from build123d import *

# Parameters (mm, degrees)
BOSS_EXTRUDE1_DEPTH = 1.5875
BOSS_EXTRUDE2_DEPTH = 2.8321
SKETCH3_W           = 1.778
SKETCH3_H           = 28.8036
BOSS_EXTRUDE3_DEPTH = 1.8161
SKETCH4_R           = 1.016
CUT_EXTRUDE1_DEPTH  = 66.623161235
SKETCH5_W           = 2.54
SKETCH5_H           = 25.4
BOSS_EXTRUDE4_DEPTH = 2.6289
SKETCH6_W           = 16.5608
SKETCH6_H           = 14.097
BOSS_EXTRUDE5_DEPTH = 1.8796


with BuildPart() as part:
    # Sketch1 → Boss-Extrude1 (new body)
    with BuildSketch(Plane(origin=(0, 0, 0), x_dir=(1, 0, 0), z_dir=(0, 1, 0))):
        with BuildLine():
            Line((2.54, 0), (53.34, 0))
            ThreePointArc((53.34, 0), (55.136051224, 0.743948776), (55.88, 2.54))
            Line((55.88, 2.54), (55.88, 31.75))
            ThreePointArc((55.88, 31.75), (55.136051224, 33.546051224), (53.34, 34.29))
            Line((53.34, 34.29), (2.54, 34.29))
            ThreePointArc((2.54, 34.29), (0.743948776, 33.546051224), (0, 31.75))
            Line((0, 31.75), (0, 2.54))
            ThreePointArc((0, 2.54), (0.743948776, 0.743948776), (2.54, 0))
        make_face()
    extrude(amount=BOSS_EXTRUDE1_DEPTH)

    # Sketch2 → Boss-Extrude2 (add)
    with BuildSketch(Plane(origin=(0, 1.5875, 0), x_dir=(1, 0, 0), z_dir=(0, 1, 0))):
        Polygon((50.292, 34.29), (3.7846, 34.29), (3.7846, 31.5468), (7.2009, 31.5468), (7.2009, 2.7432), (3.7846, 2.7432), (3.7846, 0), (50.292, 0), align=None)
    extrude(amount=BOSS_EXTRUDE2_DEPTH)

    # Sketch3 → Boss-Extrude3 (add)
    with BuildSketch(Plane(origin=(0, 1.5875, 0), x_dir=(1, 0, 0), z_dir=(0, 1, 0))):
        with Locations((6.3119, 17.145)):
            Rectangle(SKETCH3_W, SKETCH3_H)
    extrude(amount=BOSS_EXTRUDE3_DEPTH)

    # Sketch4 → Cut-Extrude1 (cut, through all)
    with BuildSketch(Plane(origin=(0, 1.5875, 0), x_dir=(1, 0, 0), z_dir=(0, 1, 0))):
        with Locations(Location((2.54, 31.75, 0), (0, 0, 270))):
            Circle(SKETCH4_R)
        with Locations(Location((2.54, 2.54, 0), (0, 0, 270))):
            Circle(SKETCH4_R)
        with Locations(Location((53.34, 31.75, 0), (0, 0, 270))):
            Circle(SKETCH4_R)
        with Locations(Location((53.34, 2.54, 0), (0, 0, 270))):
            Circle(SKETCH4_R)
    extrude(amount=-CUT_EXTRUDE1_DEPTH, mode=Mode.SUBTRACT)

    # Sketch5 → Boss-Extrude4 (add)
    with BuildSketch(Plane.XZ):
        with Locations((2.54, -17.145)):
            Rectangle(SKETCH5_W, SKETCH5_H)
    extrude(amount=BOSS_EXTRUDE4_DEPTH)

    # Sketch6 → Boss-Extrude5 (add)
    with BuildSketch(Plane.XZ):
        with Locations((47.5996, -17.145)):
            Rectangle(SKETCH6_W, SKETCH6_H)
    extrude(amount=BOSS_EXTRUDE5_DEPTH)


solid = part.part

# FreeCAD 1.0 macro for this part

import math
import FreeCAD as App
import Part
import Sketcher

V = App.Vector
Q = App.Units.Quantity


def add_polygon(sketch, points):
    """Adds a closed chain of lines whose ends are joined by coincident constraints."""
    first, n = sketch.GeometryCount, len(points)
    for a, b in zip(points, points[1:] + points[:1]):
        sketch.addGeometry(Part.LineSegment(App.Vector(*a, 0), App.Vector(*b, 0)), False)
    for i in range(n):
        sketch.addConstraint(Sketcher.Constraint("Coincident", first + i, 2, first + (i + 1) % n, 1))

doc = App.newDocument("Part")
body = doc.addObject("PartDesign::Body", "Body")

sketch1 = body.newObject("Sketcher::SketchObject", "Sketch")
sketch1.AttachmentSupport = (doc.getObject("XZ_Plane"), [""])
sketch1.MapMode = "FlatFace"
sketch1.addGeometry(Part.LineSegment(V(2.5, 0, 0), V(53.3, 0, 0)), False)
sketch1.addGeometry(Part.ArcOfCircle(Part.Circle(V(53.3, -2.5, 0), V(0, 0, 1), 2.5), math.radians(0), math.radians(90)), False)
sketch1.addGeometry(Part.LineSegment(V(55.9, -2.5, 0), V(55.9, -31.8, 0)), False)
sketch1.addGeometry(Part.ArcOfCircle(Part.Circle(V(53.3, -31.7, 0), V(0, 0, 1), 2.5), math.radians(-90), math.radians(0)), False)
sketch1.addGeometry(Part.LineSegment(V(53.3, -34.3, 0), V(2.5, -34.3, 0)), False)
sketch1.addGeometry(Part.ArcOfCircle(Part.Circle(V(2.5, -31.7, 0), V(0, 0, 1), 2.5), math.radians(-180), math.radians(-90)), False)
sketch1.addGeometry(Part.LineSegment(V(0, -31.8, 0), V(0, -2.5, 0)), False)
sketch1.addGeometry(Part.ArcOfCircle(Part.Circle(V(2.5, -2.5, 0), V(0, 0, 1), 2.5), math.radians(90), math.radians(180)), False)
sketch1.addConstraint(Sketcher.Constraint("Tangent", 0, 2, 1, 2))
sketch1.addConstraint(Sketcher.Constraint("Tangent", 1, 1, 2, 1))
sketch1.addConstraint(Sketcher.Constraint("Tangent", 2, 2, 3, 2))
sketch1.addConstraint(Sketcher.Constraint("Tangent", 3, 1, 4, 1))
sketch1.addConstraint(Sketcher.Constraint("Tangent", 4, 2, 5, 2))
sketch1.addConstraint(Sketcher.Constraint("Tangent", 5, 1, 6, 1))
sketch1.addConstraint(Sketcher.Constraint("Tangent", 6, 2, 7, 2))
sketch1.addConstraint(Sketcher.Constraint("Tangent", 7, 1, 0, 1))
sketch1.addConstraint(Sketcher.Constraint("Horizontal", 0))
sketch1.addConstraint(Sketcher.Constraint("Vertical", 2))
sketch1.addConstraint(Sketcher.Constraint("Horizontal", 4))
sketch1.addConstraint(Sketcher.Constraint("Vertical", 6))
sketch1.addConstraint(Sketcher.Constraint("Equal", 1, 3))
sketch1.addConstraint(Sketcher.Constraint("Equal", 3, 5))
sketch1.addConstraint(Sketcher.Constraint("Equal", 5, 7))
sketch1.addConstraint(Sketcher.Constraint("PointOnObject", 0, 2, -1))
sketch1.addConstraint(Sketcher.Constraint("PointOnObject", 5, 1, -2))
sketch1.addConstraint(Sketcher.Constraint("Radius", 1, Q("0.1 in")))
sketch1.addConstraint(Sketcher.Constraint("DistanceX", 0, 1, 0, 2, Q("2 in")))
sketch1.addConstraint(Sketcher.Constraint("DistanceY", 2, 2, 2, 1, Q("1.15 in")))
pad1 = body.newObject("PartDesign::Pad", "Pad")
pad1.Profile = sketch1
pad1.Length = Q("0.0625 in")
pad1.Reversed = True

sketch2 = body.newObject("Sketcher::SketchObject", "Sketch001")
sketch2.AttachmentSupport = (doc.getObject("XZ_Plane"), [""])
sketch2.MapMode = "FlatFace"
sketch2.AttachmentOffset = App.Placement(V(0, 0, -0.0625 * 25.4), App.Rotation())
add_polygon(sketch2, [(50.3, -34.3), (3.8, -34.3), (3.8, -31.5), (7.2, -31.5), (7.2, -2.7), (3.8, -2.7), (3.8, 0), (50.3, 0)])
sketch2.addConstraint(Sketcher.Constraint("Horizontal", 0))
sketch2.addConstraint(Sketcher.Constraint("Vertical", 1))
sketch2.addConstraint(Sketcher.Constraint("Horizontal", 2))
sketch2.addConstraint(Sketcher.Constraint("Vertical", 3))
sketch2.addConstraint(Sketcher.Constraint("Horizontal", 4))
sketch2.addConstraint(Sketcher.Constraint("Vertical", 5))
sketch2.addConstraint(Sketcher.Constraint("Horizontal", 6))
sketch2.addConstraint(Sketcher.Constraint("Vertical", 7))
sketch2.addConstraint(Sketcher.Constraint("PointOnObject", 5, 2, -1))
sketch2.addConstraint(Sketcher.Constraint("Vertical", 1, 2, 4, 2))
sketch2.addConstraint(Sketcher.Constraint("Equal", 1, 5))
sketch2.addConstraint(Sketcher.Constraint("DistanceY", 7, 2, 7, 1, Q("1.35 in")))
sketch2.addConstraint(Sketcher.Constraint("DistanceX", 0, 2, 0, 1, Q("1.831 in")))
sketch2.addConstraint(Sketcher.Constraint("DistanceY", 1, 1, 1, 2, Q("0.108 in")))
sketch2.addConstraint(Sketcher.Constraint("DistanceX", -1, 1, 6, 2, Q("1.98 in")))
sketch2.addConstraint(Sketcher.Constraint("DistanceX", 2, 1, 2, 2, Q("0.1345 in")))
pad2 = body.newObject("PartDesign::Pad", "Pad001")
pad2.Profile = sketch2
pad2.Length = Q("0.1115 in")
pad2.Reversed = True

sketch3 = body.newObject("Sketcher::SketchObject", "Sketch002")
sketch3.AttachmentSupport = (doc.getObject("XZ_Plane"), [""])
sketch3.MapMode = "FlatFace"
sketch3.AttachmentOffset = App.Placement(V(0, 0, -0.0625 * 25.4), App.Rotation())
add_polygon(sketch3, [(5.4, -31.5), (5.4, -2.7), (7.2, -2.7), (7.2, -31.5)])
sketch3.addConstraint(Sketcher.Constraint("Vertical", 0))
sketch3.addConstraint(Sketcher.Constraint("Horizontal", 1))
sketch3.addConstraint(Sketcher.Constraint("Vertical", 2))
sketch3.addConstraint(Sketcher.Constraint("Horizontal", 3))
sketch3.addConstraint(Sketcher.Constraint("DistanceX", 1, 1, 1, 2, Q("0.07 in")))
sketch3.addConstraint(Sketcher.Constraint("DistanceY", 0, 1, 0, 2, Q("1.134 in")))
sketch3.addConstraint(Sketcher.Constraint("DistanceY", 0, 2, -1, 1, Q("0.108 in")))
sketch3.addConstraint(Sketcher.Constraint("DistanceX", -1, 1, 0, 2, Q("0.2135 in")))
pad3 = body.newObject("PartDesign::Pad", "Pad002")
pad3.Profile = sketch3
pad3.Length = Q("0.0715 in")
pad3.Reversed = True

sketch4 = body.newObject("Sketcher::SketchObject", "Sketch003")
sketch4.AttachmentSupport = (doc.getObject("XZ_Plane"), [""])
sketch4.MapMode = "FlatFace"
sketch4.AttachmentOffset = App.Placement(V(0, 0, -0.0625 * 25.4), App.Rotation())
sketch4.addGeometry(Part.Circle(V(2.5, -31.8, 0), V(0, 0, 1), 1), False)
sketch4.addGeometry(Part.Circle(V(2.5, -2.5, 0), V(0, 0, 1), 1), False)
sketch4.addGeometry(Part.Circle(V(53.3, -31.8, 0), V(0, 0, 1), 1), False)
sketch4.addGeometry(Part.Circle(V(53.3, -2.5, 0), V(0, 0, 1), 1), False)
sketch4.addConstraint(Sketcher.Constraint("Equal", 0, 1))
sketch4.addConstraint(Sketcher.Constraint("Equal", 1, 2))
sketch4.addConstraint(Sketcher.Constraint("Equal", 2, 3))
sketch4.addConstraint(Sketcher.Constraint("Horizontal", 0, 3, 2, 3))
sketch4.addConstraint(Sketcher.Constraint("Horizontal", 1, 3, 3, 3))
sketch4.addConstraint(Sketcher.Constraint("Vertical", 0, 3, 1, 3))
sketch4.addConstraint(Sketcher.Constraint("Vertical", 2, 3, 3, 3))
sketch4.addConstraint(Sketcher.Constraint("Diameter", 0, Q("0.08 in")))
sketch4.addConstraint(Sketcher.Constraint("DistanceX", 0, 3, 2, 3, Q("2 in")))
sketch4.addConstraint(Sketcher.Constraint("DistanceX", -1, 1, 0, 3, Q("0.1 in")))
sketch4.addConstraint(Sketcher.Constraint("DistanceY", 1, 3, -1, 1, Q("0.1 in")))
sketch4.addConstraint(Sketcher.Constraint("DistanceY", 0, 3, -1, 1, Q("1.25 in")))
pocket1 = body.newObject("PartDesign::Pocket", "Pocket")
pocket1.Profile = sketch4
pocket1.Type = "ThroughAll"
pocket1.Reversed = True

sketch5 = body.newObject("Sketcher::SketchObject", "Sketch004")
sketch5.AttachmentSupport = (doc.getObject("XZ_Plane"), [""])
sketch5.MapMode = "FlatFace"
add_polygon(sketch5, [(1.3, -4.4), (1.3, -29.8), (3.8, -29.8), (3.8, -4.4)])
sketch5.addConstraint(Sketcher.Constraint("Vertical", 0))
sketch5.addConstraint(Sketcher.Constraint("Horizontal", 1))
sketch5.addConstraint(Sketcher.Constraint("Vertical", 2))
sketch5.addConstraint(Sketcher.Constraint("Horizontal", 3))
sketch5.addConstraint(Sketcher.Constraint("DistanceY", 0, 2, 0, 1, Q("1 in")))
sketch5.addConstraint(Sketcher.Constraint("DistanceX", 1, 1, 1, 2, Q("0.1 in")))
sketch5.addConstraint(Sketcher.Constraint("DistanceX", -1, 1, 0, 2, Q("0.05 in")))
sketch5.addConstraint(Sketcher.Constraint("DistanceY", 0, 2, -1, 1, Q("1.175 in")))
pad4 = body.newObject("PartDesign::Pad", "Pad003")
pad4.Profile = sketch5
pad4.Length = Q("0.1035 in")

sketch6 = body.newObject("Sketcher::SketchObject", "Sketch005")
sketch6.AttachmentSupport = (doc.getObject("XZ_Plane"), [""])
sketch6.MapMode = "FlatFace"
add_polygon(sketch6, [(39, -10), (39, -24), (56, -24), (56, -10)])
sketch6.addConstraint(Sketcher.Constraint("Vertical", 0))
sketch6.addConstraint(Sketcher.Constraint("Horizontal", 1))
sketch6.addConstraint(Sketcher.Constraint("Vertical", 2))
sketch6.addConstraint(Sketcher.Constraint("Horizontal", 3))
sketch6.addConstraint(Sketcher.Constraint("DistanceX", -1, 1, 1, 2, Q("2.2 in")))
sketch6.addConstraint(Sketcher.Constraint("DistanceX", 1, 1, 1, 2, Q("0.652 in")))
sketch6.addConstraint(Sketcher.Constraint("DistanceY", 0, 2, 0, 1, Q("0.555 in")))
sketch6.addConstraint(Sketcher.Constraint("DistanceY", 0, 2, -1, 1, Q("0.9525 in")))
pad5 = body.newObject("PartDesign::Pad", "Pad004")
pad5.Profile = sketch6
pad5.Length = Q("0.074 in")

doc.recompute()
